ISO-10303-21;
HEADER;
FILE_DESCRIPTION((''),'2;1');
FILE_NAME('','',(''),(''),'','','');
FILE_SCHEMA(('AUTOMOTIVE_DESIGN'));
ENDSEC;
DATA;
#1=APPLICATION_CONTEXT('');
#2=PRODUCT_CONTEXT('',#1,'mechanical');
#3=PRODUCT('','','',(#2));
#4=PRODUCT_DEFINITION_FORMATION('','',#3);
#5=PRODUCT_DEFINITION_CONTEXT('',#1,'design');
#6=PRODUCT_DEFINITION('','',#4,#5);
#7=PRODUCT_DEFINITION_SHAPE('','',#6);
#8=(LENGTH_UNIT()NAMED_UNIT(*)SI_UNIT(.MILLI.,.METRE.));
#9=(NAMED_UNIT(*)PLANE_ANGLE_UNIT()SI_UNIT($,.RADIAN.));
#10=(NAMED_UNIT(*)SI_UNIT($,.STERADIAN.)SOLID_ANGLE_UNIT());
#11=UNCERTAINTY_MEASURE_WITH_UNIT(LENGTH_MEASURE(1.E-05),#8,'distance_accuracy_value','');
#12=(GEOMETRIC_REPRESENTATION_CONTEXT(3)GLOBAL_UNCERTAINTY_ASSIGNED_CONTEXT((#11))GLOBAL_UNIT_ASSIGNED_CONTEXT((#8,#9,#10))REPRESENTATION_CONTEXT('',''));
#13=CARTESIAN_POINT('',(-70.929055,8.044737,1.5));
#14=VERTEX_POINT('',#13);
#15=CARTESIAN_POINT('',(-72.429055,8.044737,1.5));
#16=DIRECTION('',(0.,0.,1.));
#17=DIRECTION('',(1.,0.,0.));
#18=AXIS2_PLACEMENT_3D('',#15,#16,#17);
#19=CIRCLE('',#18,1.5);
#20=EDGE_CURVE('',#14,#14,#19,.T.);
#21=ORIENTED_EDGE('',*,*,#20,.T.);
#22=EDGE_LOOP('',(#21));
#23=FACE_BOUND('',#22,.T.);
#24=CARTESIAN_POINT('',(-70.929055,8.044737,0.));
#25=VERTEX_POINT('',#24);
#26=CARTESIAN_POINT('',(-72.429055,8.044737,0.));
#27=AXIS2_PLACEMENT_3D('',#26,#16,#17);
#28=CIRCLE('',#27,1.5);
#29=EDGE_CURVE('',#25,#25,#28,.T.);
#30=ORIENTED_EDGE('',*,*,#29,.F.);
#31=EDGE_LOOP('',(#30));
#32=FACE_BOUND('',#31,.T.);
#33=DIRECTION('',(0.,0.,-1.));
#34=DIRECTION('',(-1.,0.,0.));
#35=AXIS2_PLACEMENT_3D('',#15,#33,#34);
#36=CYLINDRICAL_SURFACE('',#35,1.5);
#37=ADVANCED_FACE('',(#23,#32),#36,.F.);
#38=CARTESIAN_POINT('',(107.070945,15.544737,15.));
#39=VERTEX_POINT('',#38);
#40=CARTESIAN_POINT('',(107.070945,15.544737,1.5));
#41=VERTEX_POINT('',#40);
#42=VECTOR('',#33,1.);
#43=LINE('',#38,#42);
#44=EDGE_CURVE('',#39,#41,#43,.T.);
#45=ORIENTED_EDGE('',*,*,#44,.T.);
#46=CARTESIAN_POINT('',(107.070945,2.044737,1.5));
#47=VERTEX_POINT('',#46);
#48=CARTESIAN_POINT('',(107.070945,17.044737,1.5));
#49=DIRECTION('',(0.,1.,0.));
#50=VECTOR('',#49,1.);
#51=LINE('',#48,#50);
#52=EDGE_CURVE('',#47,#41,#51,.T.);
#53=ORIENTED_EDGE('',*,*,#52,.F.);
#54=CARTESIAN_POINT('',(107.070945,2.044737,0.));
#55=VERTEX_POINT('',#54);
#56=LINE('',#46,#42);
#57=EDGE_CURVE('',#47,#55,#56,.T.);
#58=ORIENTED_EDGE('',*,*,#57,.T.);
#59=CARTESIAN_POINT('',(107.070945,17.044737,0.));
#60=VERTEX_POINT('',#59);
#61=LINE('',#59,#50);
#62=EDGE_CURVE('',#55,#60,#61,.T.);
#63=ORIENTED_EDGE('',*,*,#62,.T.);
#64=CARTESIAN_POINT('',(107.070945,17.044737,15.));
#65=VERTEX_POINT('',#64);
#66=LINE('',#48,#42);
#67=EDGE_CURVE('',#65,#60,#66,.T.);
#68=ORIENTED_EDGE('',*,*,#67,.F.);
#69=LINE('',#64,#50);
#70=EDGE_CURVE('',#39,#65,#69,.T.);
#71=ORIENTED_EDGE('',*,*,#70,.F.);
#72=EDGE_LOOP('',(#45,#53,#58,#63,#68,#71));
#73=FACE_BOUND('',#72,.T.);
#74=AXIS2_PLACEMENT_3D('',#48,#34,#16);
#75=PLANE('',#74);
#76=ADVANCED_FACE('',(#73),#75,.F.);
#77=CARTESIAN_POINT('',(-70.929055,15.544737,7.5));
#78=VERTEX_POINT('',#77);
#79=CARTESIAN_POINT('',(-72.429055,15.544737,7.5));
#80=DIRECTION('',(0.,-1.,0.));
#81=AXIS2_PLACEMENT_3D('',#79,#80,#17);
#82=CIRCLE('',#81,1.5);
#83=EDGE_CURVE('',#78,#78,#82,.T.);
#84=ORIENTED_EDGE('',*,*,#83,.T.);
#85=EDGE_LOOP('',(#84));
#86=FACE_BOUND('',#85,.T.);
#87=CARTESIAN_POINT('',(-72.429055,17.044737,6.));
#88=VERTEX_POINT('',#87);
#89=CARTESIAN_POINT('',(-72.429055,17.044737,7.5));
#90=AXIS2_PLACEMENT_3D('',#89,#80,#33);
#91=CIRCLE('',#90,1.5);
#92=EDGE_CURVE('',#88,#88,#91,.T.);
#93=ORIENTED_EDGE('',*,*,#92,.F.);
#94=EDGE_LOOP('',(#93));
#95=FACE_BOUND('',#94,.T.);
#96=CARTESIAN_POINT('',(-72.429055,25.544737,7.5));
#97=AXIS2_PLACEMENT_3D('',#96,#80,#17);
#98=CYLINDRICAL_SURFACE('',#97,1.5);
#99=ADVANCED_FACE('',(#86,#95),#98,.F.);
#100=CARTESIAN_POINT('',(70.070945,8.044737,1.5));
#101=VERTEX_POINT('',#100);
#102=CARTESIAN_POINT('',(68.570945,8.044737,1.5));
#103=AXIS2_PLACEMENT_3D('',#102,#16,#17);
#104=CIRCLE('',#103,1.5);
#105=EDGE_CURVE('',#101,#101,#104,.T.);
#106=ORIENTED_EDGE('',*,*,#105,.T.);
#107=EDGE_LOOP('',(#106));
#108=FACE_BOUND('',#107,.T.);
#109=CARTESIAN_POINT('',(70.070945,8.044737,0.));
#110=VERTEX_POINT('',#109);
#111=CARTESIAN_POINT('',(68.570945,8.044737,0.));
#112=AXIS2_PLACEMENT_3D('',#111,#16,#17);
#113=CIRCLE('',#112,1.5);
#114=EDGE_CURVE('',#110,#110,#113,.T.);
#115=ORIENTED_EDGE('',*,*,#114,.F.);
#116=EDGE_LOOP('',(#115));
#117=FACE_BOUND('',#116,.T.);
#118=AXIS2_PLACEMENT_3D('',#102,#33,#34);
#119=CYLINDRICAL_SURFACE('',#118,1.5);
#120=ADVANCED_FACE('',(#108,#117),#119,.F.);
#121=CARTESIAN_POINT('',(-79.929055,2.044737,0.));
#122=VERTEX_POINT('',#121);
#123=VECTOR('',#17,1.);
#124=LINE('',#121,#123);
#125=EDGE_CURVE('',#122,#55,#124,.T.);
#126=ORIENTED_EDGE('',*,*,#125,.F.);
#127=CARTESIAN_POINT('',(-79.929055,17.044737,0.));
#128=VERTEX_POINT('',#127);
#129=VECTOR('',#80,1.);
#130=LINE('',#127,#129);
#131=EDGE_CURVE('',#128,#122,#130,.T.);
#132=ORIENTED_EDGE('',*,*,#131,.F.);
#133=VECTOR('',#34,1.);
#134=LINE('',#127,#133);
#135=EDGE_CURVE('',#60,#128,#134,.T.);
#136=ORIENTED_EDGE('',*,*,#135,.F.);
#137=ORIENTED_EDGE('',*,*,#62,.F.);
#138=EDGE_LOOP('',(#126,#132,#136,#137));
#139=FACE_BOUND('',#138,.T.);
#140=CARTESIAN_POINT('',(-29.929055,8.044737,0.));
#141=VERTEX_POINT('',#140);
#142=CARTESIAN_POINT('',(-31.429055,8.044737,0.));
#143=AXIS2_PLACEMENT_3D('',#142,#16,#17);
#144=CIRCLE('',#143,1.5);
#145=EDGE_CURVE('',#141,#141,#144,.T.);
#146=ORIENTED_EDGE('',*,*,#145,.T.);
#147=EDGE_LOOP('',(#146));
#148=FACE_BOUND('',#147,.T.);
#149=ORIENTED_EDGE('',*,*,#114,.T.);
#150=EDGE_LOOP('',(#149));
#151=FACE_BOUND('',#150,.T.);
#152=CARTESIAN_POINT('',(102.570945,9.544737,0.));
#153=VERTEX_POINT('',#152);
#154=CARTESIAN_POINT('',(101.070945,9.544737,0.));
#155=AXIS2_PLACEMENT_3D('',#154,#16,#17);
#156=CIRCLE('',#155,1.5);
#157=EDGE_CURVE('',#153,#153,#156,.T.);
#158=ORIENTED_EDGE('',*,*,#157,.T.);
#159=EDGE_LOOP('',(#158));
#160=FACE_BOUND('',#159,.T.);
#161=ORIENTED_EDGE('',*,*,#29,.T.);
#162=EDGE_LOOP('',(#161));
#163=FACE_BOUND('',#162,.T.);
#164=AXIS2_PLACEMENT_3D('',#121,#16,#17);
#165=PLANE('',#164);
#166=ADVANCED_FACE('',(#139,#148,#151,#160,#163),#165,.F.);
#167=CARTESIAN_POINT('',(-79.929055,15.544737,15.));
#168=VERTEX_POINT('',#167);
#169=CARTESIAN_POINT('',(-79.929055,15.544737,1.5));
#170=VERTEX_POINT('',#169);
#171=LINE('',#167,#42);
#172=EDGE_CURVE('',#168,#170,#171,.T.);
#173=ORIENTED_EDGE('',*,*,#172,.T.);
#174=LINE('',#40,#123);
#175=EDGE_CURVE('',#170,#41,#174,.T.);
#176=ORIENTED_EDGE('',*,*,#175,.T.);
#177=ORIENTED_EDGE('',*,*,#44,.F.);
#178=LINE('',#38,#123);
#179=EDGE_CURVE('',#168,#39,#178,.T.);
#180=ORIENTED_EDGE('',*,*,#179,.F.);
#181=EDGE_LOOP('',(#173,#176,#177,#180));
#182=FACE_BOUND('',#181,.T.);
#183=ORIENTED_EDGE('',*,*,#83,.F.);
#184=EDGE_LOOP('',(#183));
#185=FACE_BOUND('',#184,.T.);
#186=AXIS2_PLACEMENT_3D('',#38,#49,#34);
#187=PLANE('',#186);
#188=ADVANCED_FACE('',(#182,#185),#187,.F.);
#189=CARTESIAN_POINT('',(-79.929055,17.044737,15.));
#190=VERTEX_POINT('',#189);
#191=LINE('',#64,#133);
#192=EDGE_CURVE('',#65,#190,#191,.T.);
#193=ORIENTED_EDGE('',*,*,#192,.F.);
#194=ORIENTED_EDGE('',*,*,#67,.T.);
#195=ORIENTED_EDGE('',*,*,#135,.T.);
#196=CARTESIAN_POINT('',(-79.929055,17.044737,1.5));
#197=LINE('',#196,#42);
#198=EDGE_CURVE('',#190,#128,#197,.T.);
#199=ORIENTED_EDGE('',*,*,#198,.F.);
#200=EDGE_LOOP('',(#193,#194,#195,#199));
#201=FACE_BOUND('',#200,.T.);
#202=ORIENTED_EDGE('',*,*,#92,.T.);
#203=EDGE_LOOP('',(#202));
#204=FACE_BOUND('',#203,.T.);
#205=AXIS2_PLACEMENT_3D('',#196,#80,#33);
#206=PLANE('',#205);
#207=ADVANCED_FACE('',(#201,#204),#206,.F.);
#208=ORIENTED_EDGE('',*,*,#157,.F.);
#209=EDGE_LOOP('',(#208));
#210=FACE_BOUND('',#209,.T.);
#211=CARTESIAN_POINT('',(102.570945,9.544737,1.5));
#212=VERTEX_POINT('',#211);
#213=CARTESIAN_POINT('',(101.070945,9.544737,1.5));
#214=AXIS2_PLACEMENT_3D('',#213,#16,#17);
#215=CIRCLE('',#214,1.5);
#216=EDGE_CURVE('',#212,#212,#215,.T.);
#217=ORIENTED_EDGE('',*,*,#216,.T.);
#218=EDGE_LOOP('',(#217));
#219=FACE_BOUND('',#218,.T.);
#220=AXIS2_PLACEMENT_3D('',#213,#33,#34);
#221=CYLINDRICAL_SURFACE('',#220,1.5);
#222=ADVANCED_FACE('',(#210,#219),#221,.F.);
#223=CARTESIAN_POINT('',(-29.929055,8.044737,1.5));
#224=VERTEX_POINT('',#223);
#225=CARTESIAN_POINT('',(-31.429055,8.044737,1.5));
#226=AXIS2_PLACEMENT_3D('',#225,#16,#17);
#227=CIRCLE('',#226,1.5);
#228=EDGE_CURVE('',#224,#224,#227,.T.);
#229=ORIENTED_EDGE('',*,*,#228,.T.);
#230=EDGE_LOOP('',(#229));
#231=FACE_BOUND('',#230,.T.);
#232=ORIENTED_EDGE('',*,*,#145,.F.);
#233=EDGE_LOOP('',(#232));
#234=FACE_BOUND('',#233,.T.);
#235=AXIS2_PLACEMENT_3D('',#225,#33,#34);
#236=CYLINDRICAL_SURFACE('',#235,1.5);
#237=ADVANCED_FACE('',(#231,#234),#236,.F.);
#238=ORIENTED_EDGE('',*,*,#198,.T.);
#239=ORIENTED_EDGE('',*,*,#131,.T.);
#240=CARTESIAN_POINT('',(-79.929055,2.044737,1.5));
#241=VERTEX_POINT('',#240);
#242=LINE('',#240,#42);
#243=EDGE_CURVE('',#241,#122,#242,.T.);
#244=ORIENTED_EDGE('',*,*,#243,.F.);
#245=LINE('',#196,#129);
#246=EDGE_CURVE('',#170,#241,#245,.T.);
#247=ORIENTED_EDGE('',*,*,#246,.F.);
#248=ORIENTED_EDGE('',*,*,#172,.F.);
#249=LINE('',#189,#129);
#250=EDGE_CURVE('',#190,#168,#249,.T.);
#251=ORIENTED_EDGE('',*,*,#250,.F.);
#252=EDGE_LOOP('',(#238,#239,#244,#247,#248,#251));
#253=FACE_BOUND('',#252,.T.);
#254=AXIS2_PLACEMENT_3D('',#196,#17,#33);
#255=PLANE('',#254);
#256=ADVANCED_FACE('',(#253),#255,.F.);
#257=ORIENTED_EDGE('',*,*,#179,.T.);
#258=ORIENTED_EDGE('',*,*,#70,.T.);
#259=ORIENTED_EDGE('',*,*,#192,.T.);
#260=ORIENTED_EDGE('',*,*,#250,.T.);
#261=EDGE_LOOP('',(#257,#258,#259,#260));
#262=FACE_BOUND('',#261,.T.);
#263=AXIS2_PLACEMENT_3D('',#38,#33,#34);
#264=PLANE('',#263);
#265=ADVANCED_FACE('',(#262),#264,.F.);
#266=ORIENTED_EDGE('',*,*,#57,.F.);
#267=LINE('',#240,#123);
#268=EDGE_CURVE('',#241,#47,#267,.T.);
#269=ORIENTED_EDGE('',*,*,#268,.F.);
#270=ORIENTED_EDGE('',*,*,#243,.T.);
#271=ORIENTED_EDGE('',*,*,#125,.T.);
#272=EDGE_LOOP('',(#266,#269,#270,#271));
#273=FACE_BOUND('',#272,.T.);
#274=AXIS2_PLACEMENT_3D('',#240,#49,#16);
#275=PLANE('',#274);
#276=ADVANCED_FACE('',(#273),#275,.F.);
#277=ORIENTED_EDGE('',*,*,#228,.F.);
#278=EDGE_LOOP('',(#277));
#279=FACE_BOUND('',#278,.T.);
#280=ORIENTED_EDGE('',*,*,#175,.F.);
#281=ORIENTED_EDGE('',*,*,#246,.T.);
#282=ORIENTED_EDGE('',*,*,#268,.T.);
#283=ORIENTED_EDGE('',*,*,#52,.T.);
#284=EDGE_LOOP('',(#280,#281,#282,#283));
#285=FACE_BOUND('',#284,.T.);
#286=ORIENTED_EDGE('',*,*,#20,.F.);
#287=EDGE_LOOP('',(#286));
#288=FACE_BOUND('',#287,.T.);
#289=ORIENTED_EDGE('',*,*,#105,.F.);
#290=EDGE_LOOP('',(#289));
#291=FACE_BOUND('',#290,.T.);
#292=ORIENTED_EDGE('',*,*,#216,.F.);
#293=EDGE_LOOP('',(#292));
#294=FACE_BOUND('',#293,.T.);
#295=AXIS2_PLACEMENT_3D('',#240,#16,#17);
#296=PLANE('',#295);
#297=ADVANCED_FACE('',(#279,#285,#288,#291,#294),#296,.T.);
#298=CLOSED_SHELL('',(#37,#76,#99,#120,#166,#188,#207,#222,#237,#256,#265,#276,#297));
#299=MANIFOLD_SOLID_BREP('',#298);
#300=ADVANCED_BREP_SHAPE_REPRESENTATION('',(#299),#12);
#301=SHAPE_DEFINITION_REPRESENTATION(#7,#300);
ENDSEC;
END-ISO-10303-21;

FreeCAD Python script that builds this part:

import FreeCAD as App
import Part
import Sketcher

V = App.Vector
Q = App.Units.Quantity

doc = App.newDocument("Part")
body = doc.addObject("PartDesign::Body", "Body")

# Sketch on XY plane
sketch1 = body.newObject("Sketcher::SketchObject", "Sketch")
sketch1.AttachmentSupport = (doc.getObject("XY_Plane"), [""])
sketch1.MapMode = "FlatFace"
sketch1.addGeometry([
    Part.LineSegment(V(-79.9, 17, 0), V(-79.9, 2, 0)),  # 0
    Part.LineSegment(V(-79.9, 2, 0), V(107.1, 2, 0)),  # 1
    Part.LineSegment(V(107.1, 2, 0), V(107.1, 17, 0)),  # 2
    Part.LineSegment(V(107.1, 17, 0), V(-79.9, 17, 0)),  # 3
    Part.Circle(V(-72.4, 8, 0), V(0, 0, 1), 1.5),  # 4
    Part.Circle(V(-31.4, 8, 0), V(0, 0, 1), 1.5),  # 5
    Part.Circle(V(68.6, 8, 0), V(0, 0, 1), 1.5),  # 6
    Part.Circle(V(101.1, 9.5, 0), V(0, 0, 1), 1.5),  # 7
], False)
sketch1.addConstraint([
    Sketcher.Constraint("Coincident", 0, 2, 1, 1),
    Sketcher.Constraint("Coincident", 1, 2, 2, 1),
    Sketcher.Constraint("Coincident", 2, 2, 3, 1),
    Sketcher.Constraint("Coincident", 3, 2, 0, 1),
    Sketcher.Constraint("Vertical", 0),
    Sketcher.Constraint("Horizontal", 1),
    Sketcher.Constraint("Vertical", 2),
    Sketcher.Constraint("Horizontal", 3),
    Sketcher.Constraint("Equal", 4, 5),
    Sketcher.Constraint("Equal", 5, 6),
    Sketcher.Constraint("Equal", 6, 7),
    Sketcher.Constraint("Horizontal", 4, 3, 5, 3),
    Sketcher.Constraint("Horizontal", 5, 3, 6, 3),
    Sketcher.Constraint("Diameter", 4, Q("3 mm")),
    Sketcher.Constraint("DistanceX", 1, 1, 1, 2, Q("187 mm")),
    Sketcher.Constraint("DistanceY", 0, 2, 0, 1, Q("15 mm")),
    Sketcher.Constraint("DistanceX", 4, 3, 5, 3, Q("41 mm")),
    Sketcher.Constraint("DistanceX", 5, 3, 6, 3, Q("100 mm")),
    Sketcher.Constraint("DistanceY", 0, 2, 4, 3, Q("6 mm")),
    Sketcher.Constraint("DistanceX", 0, 2, 7, 3, Q("181 mm")),
    Sketcher.Constraint("DistanceX", 6, 3, 7, 3, Q("32.5 mm")),
    Sketcher.Constraint("DistanceY", 6, 3, 7, 3, Q("1.5 mm")),
    Sketcher.Constraint("DistanceX", 4, 3, -1, 1, Q("72.429055 mm")),
    Sketcher.Constraint("DistanceY", -1, 1, 4, 3, Q("8.044737 mm")),
])
pad1 = body.newObject("PartDesign::Pad", "Pad")
pad1.Profile = sketch1
pad1.Length = 1.5

# Sketch on XY plane
sketch2 = body.newObject("Sketcher::SketchObject", "Sketch001")
sketch2.AttachmentSupport = (doc.getObject("XY_Plane"), [""])
sketch2.MapMode = "FlatFace"
sketch2.AttachmentOffset = App.Placement(V(0, 0, 1.5), App.Rotation())
sketch2.addGeometry([
    Part.LineSegment(V(-79.9, 17, 0), V(-79.9, 15.5, 0)),
    Part.LineSegment(V(-79.9, 15.5, 0), V(107.1, 15.5, 0)),
    Part.LineSegment(V(107.1, 15.5, 0), V(107.1, 17, 0)),
    Part.LineSegment(V(107.1, 17, 0), V(-79.9, 17, 0)),
], False)
sketch2.addConstraint([
    Sketcher.Constraint("Coincident", 0, 2, 1, 1),
    Sketcher.Constraint("Coincident", 1, 2, 2, 1),
    Sketcher.Constraint("Coincident", 2, 2, 3, 1),
    Sketcher.Constraint("Coincident", 3, 2, 0, 1),
    Sketcher.Constraint("Vertical", 0),
    Sketcher.Constraint("Horizontal", 1),
    Sketcher.Constraint("Vertical", 2),
    Sketcher.Constraint("Horizontal", 3),
    Sketcher.Constraint("DistanceX", 1, 1, 1, 2, Q("187 mm")),
    Sketcher.Constraint("DistanceY", 0, 2, 0, 1, Q("1.5 mm")),
    Sketcher.Constraint("DistanceX", 0, 2, -1, 1, Q("79.929055 mm")),
    Sketcher.Constraint("DistanceY", -1, 1, 0, 2, Q("15.544737 mm")),
])
pad2 = body.newObject("PartDesign::Pad", "Pad001")
pad2.Profile = sketch2
pad2.Length = 13.5

# Sketch on XZ plane
sketch3 = body.newObject("Sketcher::SketchObject", "Sketch002")
sketch3.AttachmentSupport = (doc.getObject("XZ_Plane"), [""])
sketch3.MapMode = "FlatFace"
sketch3.AttachmentOffset = App.Placement(V(0, 0, -15.544737), App.Rotation())
sketch3.addGeometry(Part.Circle(V(-72.4, 7.5, 0), V(0, 0, 1), 1.5), False)
sketch3.addConstraint([
    Sketcher.Constraint("Diameter", 0, Q("3 mm")),
    Sketcher.Constraint("DistanceY", -1, 1, 0, 3, Q("7.5 mm")),
    Sketcher.Constraint("DistanceX", 0, 3, -1, 1, Q("72.429055 mm")),
])
pocket1 = body.newObject("PartDesign::Pocket", "Pocket")
pocket1.Profile = sketch3
pocket1.Length = 10

doc.recompute()
